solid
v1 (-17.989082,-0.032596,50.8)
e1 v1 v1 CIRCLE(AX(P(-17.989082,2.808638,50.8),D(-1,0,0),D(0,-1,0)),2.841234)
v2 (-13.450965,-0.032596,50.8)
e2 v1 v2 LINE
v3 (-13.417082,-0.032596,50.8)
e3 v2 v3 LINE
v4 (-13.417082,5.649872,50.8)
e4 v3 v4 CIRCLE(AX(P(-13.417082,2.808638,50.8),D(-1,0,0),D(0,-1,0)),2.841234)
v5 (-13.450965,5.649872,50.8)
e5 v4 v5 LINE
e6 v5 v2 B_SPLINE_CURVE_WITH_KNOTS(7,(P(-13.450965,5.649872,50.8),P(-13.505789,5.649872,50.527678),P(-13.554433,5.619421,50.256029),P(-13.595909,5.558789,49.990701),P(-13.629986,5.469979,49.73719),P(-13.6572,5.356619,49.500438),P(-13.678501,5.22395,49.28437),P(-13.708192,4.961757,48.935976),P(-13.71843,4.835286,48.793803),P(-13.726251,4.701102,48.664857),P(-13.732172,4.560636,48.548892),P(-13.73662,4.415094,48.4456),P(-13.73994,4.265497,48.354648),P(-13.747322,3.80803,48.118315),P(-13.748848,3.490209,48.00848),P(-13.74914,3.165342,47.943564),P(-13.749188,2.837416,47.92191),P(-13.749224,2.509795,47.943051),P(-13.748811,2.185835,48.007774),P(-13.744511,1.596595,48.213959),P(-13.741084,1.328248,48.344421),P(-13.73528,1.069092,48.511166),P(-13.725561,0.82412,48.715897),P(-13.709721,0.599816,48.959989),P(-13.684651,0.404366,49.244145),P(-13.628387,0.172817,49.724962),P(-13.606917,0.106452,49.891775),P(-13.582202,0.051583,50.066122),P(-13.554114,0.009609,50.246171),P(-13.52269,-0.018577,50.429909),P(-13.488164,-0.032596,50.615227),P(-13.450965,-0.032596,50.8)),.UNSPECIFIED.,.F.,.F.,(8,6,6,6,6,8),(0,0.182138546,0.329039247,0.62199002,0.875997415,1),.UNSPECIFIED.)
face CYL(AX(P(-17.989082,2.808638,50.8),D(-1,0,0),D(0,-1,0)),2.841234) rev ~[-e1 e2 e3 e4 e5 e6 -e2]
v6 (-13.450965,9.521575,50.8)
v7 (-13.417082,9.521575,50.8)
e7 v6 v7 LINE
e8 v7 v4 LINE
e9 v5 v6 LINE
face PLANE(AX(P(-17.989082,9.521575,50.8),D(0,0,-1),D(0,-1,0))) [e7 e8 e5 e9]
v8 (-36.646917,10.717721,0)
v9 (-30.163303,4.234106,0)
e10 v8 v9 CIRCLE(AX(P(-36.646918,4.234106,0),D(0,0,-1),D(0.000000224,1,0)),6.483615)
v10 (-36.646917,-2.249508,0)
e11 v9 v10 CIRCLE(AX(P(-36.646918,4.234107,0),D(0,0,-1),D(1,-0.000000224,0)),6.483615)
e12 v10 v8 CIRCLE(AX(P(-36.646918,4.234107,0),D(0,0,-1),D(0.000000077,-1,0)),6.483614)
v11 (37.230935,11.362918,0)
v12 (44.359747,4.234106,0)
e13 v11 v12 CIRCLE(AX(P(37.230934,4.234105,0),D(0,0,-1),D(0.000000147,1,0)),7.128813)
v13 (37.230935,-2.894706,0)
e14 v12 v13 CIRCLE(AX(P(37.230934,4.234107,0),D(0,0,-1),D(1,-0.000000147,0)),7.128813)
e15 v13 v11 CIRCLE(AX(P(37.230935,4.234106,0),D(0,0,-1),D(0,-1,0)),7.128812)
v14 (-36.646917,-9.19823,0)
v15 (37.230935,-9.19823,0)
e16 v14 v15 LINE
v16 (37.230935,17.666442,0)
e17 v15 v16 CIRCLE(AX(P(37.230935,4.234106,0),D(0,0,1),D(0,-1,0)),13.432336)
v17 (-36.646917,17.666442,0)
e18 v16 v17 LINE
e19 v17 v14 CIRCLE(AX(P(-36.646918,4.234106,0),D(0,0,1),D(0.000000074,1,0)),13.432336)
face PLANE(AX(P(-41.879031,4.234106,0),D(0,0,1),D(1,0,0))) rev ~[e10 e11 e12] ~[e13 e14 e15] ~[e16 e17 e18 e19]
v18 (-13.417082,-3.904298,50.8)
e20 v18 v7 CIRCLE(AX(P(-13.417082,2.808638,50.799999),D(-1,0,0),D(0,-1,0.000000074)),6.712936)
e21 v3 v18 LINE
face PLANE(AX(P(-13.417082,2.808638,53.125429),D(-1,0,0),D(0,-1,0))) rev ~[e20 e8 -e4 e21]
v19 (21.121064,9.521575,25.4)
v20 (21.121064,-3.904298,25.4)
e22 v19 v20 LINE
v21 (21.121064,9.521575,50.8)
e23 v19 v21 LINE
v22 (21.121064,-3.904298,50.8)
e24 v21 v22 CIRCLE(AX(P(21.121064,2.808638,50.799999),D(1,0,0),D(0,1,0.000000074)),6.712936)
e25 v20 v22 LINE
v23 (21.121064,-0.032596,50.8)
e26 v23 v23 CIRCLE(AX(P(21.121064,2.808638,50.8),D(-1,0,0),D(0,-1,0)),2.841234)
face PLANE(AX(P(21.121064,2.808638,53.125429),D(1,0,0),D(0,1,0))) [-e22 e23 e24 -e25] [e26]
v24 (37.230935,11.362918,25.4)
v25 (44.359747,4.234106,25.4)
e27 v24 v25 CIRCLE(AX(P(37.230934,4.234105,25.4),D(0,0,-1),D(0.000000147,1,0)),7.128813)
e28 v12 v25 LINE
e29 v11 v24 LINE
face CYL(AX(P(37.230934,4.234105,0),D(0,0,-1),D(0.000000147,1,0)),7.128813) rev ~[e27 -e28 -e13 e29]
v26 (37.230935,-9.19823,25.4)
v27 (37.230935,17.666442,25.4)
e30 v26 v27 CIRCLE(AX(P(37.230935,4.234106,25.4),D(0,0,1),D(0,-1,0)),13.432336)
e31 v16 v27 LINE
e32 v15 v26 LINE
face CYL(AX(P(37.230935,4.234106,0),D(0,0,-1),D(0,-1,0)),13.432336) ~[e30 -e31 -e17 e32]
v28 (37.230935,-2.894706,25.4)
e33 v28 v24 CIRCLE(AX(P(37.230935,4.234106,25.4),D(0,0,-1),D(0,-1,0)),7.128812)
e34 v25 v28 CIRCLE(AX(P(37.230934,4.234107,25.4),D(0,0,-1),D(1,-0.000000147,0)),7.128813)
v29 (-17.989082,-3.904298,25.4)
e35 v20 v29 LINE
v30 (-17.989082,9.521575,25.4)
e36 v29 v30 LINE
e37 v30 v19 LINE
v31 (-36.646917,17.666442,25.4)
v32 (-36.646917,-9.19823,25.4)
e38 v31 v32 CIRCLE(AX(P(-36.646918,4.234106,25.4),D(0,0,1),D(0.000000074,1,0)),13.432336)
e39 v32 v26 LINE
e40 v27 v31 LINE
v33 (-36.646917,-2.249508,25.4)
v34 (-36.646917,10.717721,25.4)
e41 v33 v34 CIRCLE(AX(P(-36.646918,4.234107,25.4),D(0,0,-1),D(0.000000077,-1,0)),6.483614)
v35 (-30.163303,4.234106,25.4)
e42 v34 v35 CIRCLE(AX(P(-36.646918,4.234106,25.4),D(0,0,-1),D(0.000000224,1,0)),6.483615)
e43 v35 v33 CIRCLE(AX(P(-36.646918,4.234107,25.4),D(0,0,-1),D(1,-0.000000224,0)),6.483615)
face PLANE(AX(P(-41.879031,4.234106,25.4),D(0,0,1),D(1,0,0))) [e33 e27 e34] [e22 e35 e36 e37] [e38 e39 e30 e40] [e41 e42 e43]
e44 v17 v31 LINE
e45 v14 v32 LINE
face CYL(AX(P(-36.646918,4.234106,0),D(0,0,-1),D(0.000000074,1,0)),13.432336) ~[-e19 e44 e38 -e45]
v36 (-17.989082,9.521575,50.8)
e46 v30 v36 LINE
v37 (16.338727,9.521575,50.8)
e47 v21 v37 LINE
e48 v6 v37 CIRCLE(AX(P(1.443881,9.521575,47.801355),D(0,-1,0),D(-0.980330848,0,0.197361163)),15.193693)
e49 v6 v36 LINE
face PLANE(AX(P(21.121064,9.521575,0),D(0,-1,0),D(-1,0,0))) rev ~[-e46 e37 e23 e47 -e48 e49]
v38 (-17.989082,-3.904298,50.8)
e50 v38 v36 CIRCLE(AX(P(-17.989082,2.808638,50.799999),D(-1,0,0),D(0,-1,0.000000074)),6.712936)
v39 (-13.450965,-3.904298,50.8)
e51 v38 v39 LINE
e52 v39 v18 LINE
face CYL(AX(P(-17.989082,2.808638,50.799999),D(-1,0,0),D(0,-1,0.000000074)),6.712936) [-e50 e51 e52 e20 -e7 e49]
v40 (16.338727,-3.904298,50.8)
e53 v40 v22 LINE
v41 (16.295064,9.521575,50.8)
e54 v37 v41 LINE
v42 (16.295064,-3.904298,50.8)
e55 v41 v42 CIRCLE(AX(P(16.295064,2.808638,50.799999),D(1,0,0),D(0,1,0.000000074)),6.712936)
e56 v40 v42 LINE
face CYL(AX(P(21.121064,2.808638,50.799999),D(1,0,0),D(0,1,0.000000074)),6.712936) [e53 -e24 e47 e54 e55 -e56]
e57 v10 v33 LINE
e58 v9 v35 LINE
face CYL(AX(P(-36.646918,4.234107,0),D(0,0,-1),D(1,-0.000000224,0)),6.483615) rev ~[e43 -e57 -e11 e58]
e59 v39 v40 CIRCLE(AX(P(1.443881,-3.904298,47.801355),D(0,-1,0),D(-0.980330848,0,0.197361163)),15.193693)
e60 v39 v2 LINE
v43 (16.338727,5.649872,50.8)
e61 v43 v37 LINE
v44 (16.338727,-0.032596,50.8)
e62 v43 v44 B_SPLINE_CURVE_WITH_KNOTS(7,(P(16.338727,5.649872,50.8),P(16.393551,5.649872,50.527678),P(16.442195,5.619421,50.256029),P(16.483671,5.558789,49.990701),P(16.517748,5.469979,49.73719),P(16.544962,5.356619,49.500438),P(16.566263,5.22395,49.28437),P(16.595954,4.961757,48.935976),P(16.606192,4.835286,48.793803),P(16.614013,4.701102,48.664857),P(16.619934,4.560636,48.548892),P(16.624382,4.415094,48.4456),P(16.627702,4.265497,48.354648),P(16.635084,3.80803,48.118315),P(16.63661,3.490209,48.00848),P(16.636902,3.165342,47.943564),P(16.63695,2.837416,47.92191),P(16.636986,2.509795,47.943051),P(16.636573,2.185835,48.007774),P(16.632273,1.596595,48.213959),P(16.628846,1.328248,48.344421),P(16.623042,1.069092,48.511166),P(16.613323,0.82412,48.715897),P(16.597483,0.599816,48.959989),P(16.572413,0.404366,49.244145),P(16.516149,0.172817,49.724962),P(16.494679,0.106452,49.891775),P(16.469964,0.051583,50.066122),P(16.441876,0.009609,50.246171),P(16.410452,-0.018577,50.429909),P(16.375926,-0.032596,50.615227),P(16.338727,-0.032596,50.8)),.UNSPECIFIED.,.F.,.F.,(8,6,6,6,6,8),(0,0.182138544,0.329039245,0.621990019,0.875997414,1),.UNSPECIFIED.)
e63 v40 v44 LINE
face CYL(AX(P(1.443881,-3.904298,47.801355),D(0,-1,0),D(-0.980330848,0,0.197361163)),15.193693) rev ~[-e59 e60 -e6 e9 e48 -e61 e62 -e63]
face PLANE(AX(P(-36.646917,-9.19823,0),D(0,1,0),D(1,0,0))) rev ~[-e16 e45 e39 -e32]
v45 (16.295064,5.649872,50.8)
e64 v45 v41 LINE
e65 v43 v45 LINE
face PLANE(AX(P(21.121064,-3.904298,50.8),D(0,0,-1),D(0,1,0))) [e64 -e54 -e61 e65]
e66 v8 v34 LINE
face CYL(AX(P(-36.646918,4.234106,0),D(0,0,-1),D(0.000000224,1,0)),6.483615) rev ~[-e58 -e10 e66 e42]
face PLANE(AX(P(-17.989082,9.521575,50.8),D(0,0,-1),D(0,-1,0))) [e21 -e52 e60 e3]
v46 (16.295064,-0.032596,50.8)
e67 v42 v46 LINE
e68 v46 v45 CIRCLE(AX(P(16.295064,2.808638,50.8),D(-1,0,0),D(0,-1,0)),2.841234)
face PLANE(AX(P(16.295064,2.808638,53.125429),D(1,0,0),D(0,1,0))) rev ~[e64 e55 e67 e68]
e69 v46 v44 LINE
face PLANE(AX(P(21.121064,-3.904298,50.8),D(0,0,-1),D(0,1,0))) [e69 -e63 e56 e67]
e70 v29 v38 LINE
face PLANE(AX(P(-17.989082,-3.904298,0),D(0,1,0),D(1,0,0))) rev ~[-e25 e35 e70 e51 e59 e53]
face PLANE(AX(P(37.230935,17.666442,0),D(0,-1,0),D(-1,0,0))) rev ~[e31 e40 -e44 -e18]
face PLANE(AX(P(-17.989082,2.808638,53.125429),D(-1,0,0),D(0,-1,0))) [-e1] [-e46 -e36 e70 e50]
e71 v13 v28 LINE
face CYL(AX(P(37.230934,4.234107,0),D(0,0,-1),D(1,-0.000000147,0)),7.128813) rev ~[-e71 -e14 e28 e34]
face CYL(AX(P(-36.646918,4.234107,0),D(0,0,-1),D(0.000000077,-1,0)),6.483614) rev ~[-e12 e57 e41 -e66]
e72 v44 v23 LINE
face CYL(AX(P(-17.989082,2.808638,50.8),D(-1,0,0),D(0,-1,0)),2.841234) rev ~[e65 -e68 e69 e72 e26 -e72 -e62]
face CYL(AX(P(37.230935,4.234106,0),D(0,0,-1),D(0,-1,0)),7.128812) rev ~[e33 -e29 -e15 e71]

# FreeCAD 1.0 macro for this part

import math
import FreeCAD as App
import Part
import Sketcher

V = App.Vector
Q = App.Units.Quantity

doc = App.newDocument("Part")
body = doc.addObject("PartDesign::Body", "Body")

# Sketch on XY plane
sketch1 = doc.addObject("Sketcher::SketchObject", "Sketch")
body.addObject(sketch1)
sketch1.AttachmentSupport = (doc.XY_Plane, [""])
sketch1.MapMode = "FlatFace"
sketch1.addGeometry([
    Part.ArcOfCircle(Part.Circle(V(-37, 4, 0), V(0, 0, 1), 13), math.radians(90), math.radians(270)),  # 0
    Part.LineSegment(V(-37, -9, 0), V(37, -9, 0)),  # 1
    Part.ArcOfCircle(Part.Circle(V(37, 4, 0), V(0, 0, 1), 13), math.radians(-90), math.radians(90)),  # 2
    Part.LineSegment(V(37, 18, 0), V(-37, 18, 0)),  # 3
    Part.ArcOfCircle(Part.Circle(V(37, 4, 0), V(0, 0, 1), 7), math.radians(90), math.radians(270)),  # 4
    Part.ArcOfCircle(Part.Circle(V(37, 4, 0), V(0, 0, 1), 7), math.radians(0), math.radians(90)),  # 5
    Part.ArcOfCircle(Part.Circle(V(37, 4, 0), V(0, 0, 1), 7), math.radians(-90), math.radians(0)),  # 6
    Part.LineSegment(V(-18, -4, 0), V(-18, 10, 0)),  # 7
    Part.LineSegment(V(-18, 10, 0), V(21, 10, 0)),  # 8
    Part.LineSegment(V(21, 10, 0), V(21, -4, 0)),  # 9
    Part.LineSegment(V(21, -4, 0), V(-18, -4, 0)),  # 10
    Part.ArcOfCircle(Part.Circle(V(-37, 4, 0), V(0, 0, 1), 6), math.radians(90), math.radians(270)),  # 11
    Part.ArcOfCircle(Part.Circle(V(-37, 4, 0), V(0, 0, 1), 6), math.radians(0), math.radians(90)),  # 12
    Part.ArcOfCircle(Part.Circle(V(-37, 4, 0), V(0, 0, 1), 6), math.radians(-90), math.radians(0)),  # 13
], False)
sketch1.addConstraint([
    Sketcher.Constraint("Tangent", 0, 2, 1, 1),
    Sketcher.Constraint("Tangent", 1, 2, 2, 1),
    Sketcher.Constraint("Tangent", 2, 2, 3, 1),
    Sketcher.Constraint("Tangent", 3, 2, 0, 1),
    Sketcher.Constraint("Tangent", 4, 1, 5, 2),
    Sketcher.Constraint("Tangent", 5, 1, 6, 2),
    Sketcher.Constraint("Tangent", 6, 1, 4, 2),
    Sketcher.Constraint("Coincident", 7, 2, 8, 1),
    Sketcher.Constraint("Coincident", 8, 2, 9, 1),
    Sketcher.Constraint("Coincident", 9, 2, 10, 1),
    Sketcher.Constraint("Coincident", 10, 2, 7, 1),
    Sketcher.Constraint("Tangent", 11, 1, 12, 2),
    Sketcher.Constraint("Tangent", 12, 1, 13, 2),
    Sketcher.Constraint("Tangent", 13, 1, 11, 2),
    Sketcher.Constraint("Horizontal", 1),
    Sketcher.Constraint("Horizontal", 3),
    Sketcher.Constraint("Vertical", 7),
    Sketcher.Constraint("Horizontal", 8),
    Sketcher.Constraint("Vertical", 9),
    Sketcher.Constraint("Horizontal", 10),
    Sketcher.Constraint("Coincident", 4, 3, 2, 3),
    Sketcher.Constraint("Coincident", 11, 3, 0, 3),
    Sketcher.Constraint("Horizontal", 13, 3, 5, 1),
    Sketcher.Constraint("Horizontal", 5, 1, 12, 1),
    Sketcher.Constraint("Vertical", 2, 2, 4, 1),
    Sketcher.Constraint("Vertical", 4, 1, 6, 1),
    Sketcher.Constraint("Vertical", 3, 2, 11, 1),
    Sketcher.Constraint("Vertical", 11, 1, 13, 1),
    Sketcher.Constraint("Radius", 0, Q("13.432336 mm")),
    Sketcher.Constraint("Radius", 4, Q("7.128812 mm")),
    Sketcher.Constraint("Radius", 11, Q("6.483614 mm")),
    Sketcher.Constraint("DistanceX", 1, 1, 1, 2, Q("73.877852 mm")),
    Sketcher.Constraint("DistanceX", 8, 1, 8, 2, Q("39.110146 mm")),
    Sketcher.Constraint("DistanceY", 7, 1, 7, 2, Q("13.425873 mm")),
    Sketcher.Constraint("DistanceX", 12, 3, -1, 1, Q("36.646918 mm")),
    Sketcher.Constraint("DistanceY", 0, 2, -1, 1, Q("9.19823 mm")),
    Sketcher.Constraint("DistanceX", 7, 2, -1, 1, Q("17.989082 mm")),
    Sketcher.Constraint("DistanceY", 11, 3, 7, 2, Q("5.287469 mm")),
])
pad1 = doc.addObject("PartDesign::Pad", "Pad")
body.addObject(pad1)
pad1.Profile = sketch1
pad1.Length = Q("1 in")

# Sketch on XY plane
sketch2 = doc.addObject("Sketcher::SketchObject", "Sketch001")
body.addObject(sketch2)
sketch2.AttachmentSupport = (doc.XY_Plane, [""])
sketch2.MapMode = "FlatFace"
sketch2.addGeometry([
    Part.LineSegment(V(21, 10, 0), V(-18, 10, 0)),
    Part.LineSegment(V(-18, 10, 0), V(-18, -4, 0)),
    Part.LineSegment(V(-18, -4, 0), V(21, -4, 0)),
    Part.LineSegment(V(21, -4, 0), V(21, 10, 0)),
], False)
sketch2.addConstraint([
    Sketcher.Constraint("Coincident", 0, 2, 1, 1),
    Sketcher.Constraint("Coincident", 1, 2, 2, 1),
    Sketcher.Constraint("Coincident", 2, 2, 3, 1),
    Sketcher.Constraint("Coincident", 3, 2, 0, 1),
    Sketcher.Constraint("Horizontal", 0),
    Sketcher.Constraint("Vertical", 1),
    Sketcher.Constraint("Horizontal", 2),
    Sketcher.Constraint("Vertical", 3),
    Sketcher.Constraint("DistanceX", 0, 2, 0, 1, Q("39.110146 mm")),
    Sketcher.Constraint("DistanceY", 1, 2, 1, 1, Q("13.425873 mm")),
    Sketcher.Constraint("DistanceX", 0, 2, -1, 1, Q("17.989082 mm")),
    Sketcher.Constraint("DistanceY", -1, 1, 0, 2, Q("9.521575 mm")),
])
pad2 = doc.addObject("PartDesign::Pad", "Pad001")
body.addObject(pad2)
pad2.Profile = sketch2
pad2.Length = Q("2 in")

# Sketch on XZ plane
sketch3 = doc.addObject("Sketcher::SketchObject", "Sketch002")
body.addObject(sketch3)
sketch3.AttachmentSupport = (doc.XZ_Plane, [""])
sketch3.MapMode = "FlatFace"
sketch3.AttachmentOffset = App.Placement(V(0, 0, 3.904298), App.Rotation())
sketch3.addGeometry([
    Part.LineSegment(V(16, 51, 0), V(-13, 51, 0)),
    Part.ArcOfCircle(Part.Circle(V(1, 48, 0), V(0, 0, 1), 15), math.radians(169), math.radians(371)),
], False)
sketch3.addConstraint([
    Sketcher.Constraint("Coincident", 0, 1, 1, 2),
    Sketcher.Constraint("Coincident", 1, 1, 0, 2),
    Sketcher.Constraint("Horizontal", 0),
    Sketcher.Constraint("DistanceY", -1, 1, 0, 1, Q("2 in")),
    Sketcher.Constraint("Radius", 1, Q("15.193693 mm")),
    Sketcher.Constraint("DistanceX", 0, 2, 0, 1, Q("29.789692 mm")),
    Sketcher.Constraint("DistanceX", -1, 1, 1, 3, Q("1.443881 mm")),
])
pocket1 = doc.addObject("PartDesign::Pocket", "Pocket")
body.addObject(pocket1)
pocket1.Profile = sketch3
pocket1.Length = Q("1 in")

# Sketch on YZ plane
sketch4 = doc.addObject("Sketcher::SketchObject", "Sketch003")
body.addObject(sketch4)
sketch4.AttachmentSupport = (doc.YZ_Plane, [""])
sketch4.MapMode = "FlatFace"
sketch4.AttachmentOffset = App.Placement(V(0, 0, -17.989082), App.Rotation())
sketch4.addGeometry([
    Part.LineSegment(V(10, 51, 0), V(-4, 51, 0)),
    Part.ArcOfCircle(Part.Circle(V(3, 51, 0), V(0, 0, 1), 7), math.radians(0), math.radians(180)),
], False)
sketch4.addConstraint([
    Sketcher.Constraint("Coincident", 0, 1, 1, 1),
    Sketcher.Constraint("Coincident", 1, 2, 0, 2),
    Sketcher.Constraint("Horizontal", 0),
    Sketcher.Constraint("Horizontal", 1, 3, 0, 1),
    Sketcher.Constraint("DistanceY", -1, 1, 1, 3, Q("2 in")),
    Sketcher.Constraint("Radius", 1, Q("6.712936 mm")),
    Sketcher.Constraint("DistanceX", -1, 1, 1, 3, Q("2.808638 mm")),
])
pad3 = doc.addObject("PartDesign::Pad", "Pad002")
body.addObject(pad3)
pad3.Profile = sketch4
pad3.Length = Q("0.18 in")

# Sketch on YZ plane
sketch5 = doc.addObject("Sketcher::SketchObject", "Sketch004")
body.addObject(sketch5)
sketch5.AttachmentSupport = (doc.YZ_Plane, [""])
sketch5.MapMode = "FlatFace"
sketch5.AttachmentOffset = App.Placement(V(0, 0, 21.121064), App.Rotation())
sketch5.addGeometry([
    Part.LineSegment(V(-4, 51, 0), V(10, 51, 0)),
    Part.ArcOfCircle(Part.Circle(V(3, 51, 0), V(0, 0, 1), 7), math.radians(0), math.radians(180)),
], False)
sketch5.addConstraint([
    Sketcher.Constraint("Coincident", 0, 1, 1, 2),
    Sketcher.Constraint("Coincident", 1, 1, 0, 2),
    Sketcher.Constraint("Horizontal", 0),
    Sketcher.Constraint("Horizontal", 1, 3, 0, 1),
    Sketcher.Constraint("DistanceY", -1, 1, 1, 3, Q("2 in")),
    Sketcher.Constraint("Radius", 1, Q("6.712936 mm")),
    Sketcher.Constraint("DistanceX", -1, 1, 1, 3, Q("2.808638 mm")),
])
pad4 = doc.addObject("PartDesign::Pad", "Pad003")
body.addObject(pad4)
pad4.Profile = sketch5
pad4.Length = Q("0.19 in")
pad4.Reversed = True

# Sketch on YZ plane
sketch6 = doc.addObject("Sketcher::SketchObject", "Sketch005")
body.addObject(sketch6)
sketch6.AttachmentSupport = (doc.YZ_Plane, [""])
sketch6.MapMode = "FlatFace"
sketch6.AttachmentOffset = App.Placement(V(0, 0, -17.989082), App.Rotation())
sketch6.addGeometry(Part.Circle(V(2.8, 50.8, 0), V(0, 0, 1), 2.8), False)
sketch6.addConstraint([
    Sketcher.Constraint("DistanceY", -1, 1, 0, 3, Q("2 in")),
    Sketcher.Constraint("Diameter", 0, Q("5.682468 mm")),
    Sketcher.Constraint("DistanceX", -1, 1, 0, 3, Q("2.808638 mm")),
])
pocket2 = doc.addObject("PartDesign::Pocket", "Pocket001")
body.addObject(pocket2)
pocket2.Profile = sketch6
pocket2.Length = Q("1.96 in")
pocket2.Reversed = True

doc.recompute()
